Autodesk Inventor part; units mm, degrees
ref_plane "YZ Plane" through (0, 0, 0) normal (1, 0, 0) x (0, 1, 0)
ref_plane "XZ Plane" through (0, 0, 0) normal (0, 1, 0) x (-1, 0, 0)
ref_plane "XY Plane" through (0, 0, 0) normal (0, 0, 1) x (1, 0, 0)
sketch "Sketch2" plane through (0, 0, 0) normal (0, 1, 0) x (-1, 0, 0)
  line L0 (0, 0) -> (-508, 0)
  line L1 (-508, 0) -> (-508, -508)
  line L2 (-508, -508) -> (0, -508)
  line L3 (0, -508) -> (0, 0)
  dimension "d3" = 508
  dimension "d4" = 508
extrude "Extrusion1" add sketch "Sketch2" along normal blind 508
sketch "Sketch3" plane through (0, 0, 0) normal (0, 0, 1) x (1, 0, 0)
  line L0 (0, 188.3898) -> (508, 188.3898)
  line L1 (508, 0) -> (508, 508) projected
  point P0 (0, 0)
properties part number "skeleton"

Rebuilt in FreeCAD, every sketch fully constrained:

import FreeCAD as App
import Part
import Sketcher
from FreeCAD import Vector
Q = App.Units.Quantity


def add_polygon(sketch, points):
    """Adds a closed chain of lines whose ends are joined by coincident constraints."""
    first, n = sketch.GeometryCount, len(points)
    for a, b in zip(points, points[1:] + points[:1]):
        sketch.addGeometry(Part.LineSegment(App.Vector(*a, 0), App.Vector(*b, 0)), False)
    for i in range(n):
        sketch.addConstraint(Sketcher.Constraint("Coincident", first + i, 2, first + (i + 1) % n, 1))

doc = App.newDocument("Part")
body = doc.addObject("PartDesign::Body", "Body")

# Sketch on XZ plane
sketch1 = doc.addObject("Sketcher::SketchObject", "Sketch")
body.addObject(sketch1)
sketch1.AttachmentSupport = (doc.XZ_Plane, [""])
sketch1.MapMode = "FlatFace"
add_polygon(sketch1, [(0, -508), (0, 0), (508, 0), (508, -508)])  # lines 0-3
sketch1.addConstraint(Sketcher.Constraint("Vertical", 0))
sketch1.addConstraint(Sketcher.Constraint("Horizontal", 1))
sketch1.addConstraint(Sketcher.Constraint("Vertical", 2))
sketch1.addConstraint(Sketcher.Constraint("Horizontal", 3))
sketch1.addConstraint(Sketcher.Constraint("Coincident", 0, 2, -1, 1))
sketch1.addConstraint(Sketcher.Constraint("Equal", 3, 0))
sketch1.addConstraint(Sketcher.Constraint("DistanceX", 1, 1, 1, 2, Q("20 in")))
pad1 = doc.addObject("PartDesign::Pad", "Pad")
body.addObject(pad1)
pad1.Profile = sketch1
pad1.Length = Q("20 in")
pad1.Reversed = True

doc.recompute()
